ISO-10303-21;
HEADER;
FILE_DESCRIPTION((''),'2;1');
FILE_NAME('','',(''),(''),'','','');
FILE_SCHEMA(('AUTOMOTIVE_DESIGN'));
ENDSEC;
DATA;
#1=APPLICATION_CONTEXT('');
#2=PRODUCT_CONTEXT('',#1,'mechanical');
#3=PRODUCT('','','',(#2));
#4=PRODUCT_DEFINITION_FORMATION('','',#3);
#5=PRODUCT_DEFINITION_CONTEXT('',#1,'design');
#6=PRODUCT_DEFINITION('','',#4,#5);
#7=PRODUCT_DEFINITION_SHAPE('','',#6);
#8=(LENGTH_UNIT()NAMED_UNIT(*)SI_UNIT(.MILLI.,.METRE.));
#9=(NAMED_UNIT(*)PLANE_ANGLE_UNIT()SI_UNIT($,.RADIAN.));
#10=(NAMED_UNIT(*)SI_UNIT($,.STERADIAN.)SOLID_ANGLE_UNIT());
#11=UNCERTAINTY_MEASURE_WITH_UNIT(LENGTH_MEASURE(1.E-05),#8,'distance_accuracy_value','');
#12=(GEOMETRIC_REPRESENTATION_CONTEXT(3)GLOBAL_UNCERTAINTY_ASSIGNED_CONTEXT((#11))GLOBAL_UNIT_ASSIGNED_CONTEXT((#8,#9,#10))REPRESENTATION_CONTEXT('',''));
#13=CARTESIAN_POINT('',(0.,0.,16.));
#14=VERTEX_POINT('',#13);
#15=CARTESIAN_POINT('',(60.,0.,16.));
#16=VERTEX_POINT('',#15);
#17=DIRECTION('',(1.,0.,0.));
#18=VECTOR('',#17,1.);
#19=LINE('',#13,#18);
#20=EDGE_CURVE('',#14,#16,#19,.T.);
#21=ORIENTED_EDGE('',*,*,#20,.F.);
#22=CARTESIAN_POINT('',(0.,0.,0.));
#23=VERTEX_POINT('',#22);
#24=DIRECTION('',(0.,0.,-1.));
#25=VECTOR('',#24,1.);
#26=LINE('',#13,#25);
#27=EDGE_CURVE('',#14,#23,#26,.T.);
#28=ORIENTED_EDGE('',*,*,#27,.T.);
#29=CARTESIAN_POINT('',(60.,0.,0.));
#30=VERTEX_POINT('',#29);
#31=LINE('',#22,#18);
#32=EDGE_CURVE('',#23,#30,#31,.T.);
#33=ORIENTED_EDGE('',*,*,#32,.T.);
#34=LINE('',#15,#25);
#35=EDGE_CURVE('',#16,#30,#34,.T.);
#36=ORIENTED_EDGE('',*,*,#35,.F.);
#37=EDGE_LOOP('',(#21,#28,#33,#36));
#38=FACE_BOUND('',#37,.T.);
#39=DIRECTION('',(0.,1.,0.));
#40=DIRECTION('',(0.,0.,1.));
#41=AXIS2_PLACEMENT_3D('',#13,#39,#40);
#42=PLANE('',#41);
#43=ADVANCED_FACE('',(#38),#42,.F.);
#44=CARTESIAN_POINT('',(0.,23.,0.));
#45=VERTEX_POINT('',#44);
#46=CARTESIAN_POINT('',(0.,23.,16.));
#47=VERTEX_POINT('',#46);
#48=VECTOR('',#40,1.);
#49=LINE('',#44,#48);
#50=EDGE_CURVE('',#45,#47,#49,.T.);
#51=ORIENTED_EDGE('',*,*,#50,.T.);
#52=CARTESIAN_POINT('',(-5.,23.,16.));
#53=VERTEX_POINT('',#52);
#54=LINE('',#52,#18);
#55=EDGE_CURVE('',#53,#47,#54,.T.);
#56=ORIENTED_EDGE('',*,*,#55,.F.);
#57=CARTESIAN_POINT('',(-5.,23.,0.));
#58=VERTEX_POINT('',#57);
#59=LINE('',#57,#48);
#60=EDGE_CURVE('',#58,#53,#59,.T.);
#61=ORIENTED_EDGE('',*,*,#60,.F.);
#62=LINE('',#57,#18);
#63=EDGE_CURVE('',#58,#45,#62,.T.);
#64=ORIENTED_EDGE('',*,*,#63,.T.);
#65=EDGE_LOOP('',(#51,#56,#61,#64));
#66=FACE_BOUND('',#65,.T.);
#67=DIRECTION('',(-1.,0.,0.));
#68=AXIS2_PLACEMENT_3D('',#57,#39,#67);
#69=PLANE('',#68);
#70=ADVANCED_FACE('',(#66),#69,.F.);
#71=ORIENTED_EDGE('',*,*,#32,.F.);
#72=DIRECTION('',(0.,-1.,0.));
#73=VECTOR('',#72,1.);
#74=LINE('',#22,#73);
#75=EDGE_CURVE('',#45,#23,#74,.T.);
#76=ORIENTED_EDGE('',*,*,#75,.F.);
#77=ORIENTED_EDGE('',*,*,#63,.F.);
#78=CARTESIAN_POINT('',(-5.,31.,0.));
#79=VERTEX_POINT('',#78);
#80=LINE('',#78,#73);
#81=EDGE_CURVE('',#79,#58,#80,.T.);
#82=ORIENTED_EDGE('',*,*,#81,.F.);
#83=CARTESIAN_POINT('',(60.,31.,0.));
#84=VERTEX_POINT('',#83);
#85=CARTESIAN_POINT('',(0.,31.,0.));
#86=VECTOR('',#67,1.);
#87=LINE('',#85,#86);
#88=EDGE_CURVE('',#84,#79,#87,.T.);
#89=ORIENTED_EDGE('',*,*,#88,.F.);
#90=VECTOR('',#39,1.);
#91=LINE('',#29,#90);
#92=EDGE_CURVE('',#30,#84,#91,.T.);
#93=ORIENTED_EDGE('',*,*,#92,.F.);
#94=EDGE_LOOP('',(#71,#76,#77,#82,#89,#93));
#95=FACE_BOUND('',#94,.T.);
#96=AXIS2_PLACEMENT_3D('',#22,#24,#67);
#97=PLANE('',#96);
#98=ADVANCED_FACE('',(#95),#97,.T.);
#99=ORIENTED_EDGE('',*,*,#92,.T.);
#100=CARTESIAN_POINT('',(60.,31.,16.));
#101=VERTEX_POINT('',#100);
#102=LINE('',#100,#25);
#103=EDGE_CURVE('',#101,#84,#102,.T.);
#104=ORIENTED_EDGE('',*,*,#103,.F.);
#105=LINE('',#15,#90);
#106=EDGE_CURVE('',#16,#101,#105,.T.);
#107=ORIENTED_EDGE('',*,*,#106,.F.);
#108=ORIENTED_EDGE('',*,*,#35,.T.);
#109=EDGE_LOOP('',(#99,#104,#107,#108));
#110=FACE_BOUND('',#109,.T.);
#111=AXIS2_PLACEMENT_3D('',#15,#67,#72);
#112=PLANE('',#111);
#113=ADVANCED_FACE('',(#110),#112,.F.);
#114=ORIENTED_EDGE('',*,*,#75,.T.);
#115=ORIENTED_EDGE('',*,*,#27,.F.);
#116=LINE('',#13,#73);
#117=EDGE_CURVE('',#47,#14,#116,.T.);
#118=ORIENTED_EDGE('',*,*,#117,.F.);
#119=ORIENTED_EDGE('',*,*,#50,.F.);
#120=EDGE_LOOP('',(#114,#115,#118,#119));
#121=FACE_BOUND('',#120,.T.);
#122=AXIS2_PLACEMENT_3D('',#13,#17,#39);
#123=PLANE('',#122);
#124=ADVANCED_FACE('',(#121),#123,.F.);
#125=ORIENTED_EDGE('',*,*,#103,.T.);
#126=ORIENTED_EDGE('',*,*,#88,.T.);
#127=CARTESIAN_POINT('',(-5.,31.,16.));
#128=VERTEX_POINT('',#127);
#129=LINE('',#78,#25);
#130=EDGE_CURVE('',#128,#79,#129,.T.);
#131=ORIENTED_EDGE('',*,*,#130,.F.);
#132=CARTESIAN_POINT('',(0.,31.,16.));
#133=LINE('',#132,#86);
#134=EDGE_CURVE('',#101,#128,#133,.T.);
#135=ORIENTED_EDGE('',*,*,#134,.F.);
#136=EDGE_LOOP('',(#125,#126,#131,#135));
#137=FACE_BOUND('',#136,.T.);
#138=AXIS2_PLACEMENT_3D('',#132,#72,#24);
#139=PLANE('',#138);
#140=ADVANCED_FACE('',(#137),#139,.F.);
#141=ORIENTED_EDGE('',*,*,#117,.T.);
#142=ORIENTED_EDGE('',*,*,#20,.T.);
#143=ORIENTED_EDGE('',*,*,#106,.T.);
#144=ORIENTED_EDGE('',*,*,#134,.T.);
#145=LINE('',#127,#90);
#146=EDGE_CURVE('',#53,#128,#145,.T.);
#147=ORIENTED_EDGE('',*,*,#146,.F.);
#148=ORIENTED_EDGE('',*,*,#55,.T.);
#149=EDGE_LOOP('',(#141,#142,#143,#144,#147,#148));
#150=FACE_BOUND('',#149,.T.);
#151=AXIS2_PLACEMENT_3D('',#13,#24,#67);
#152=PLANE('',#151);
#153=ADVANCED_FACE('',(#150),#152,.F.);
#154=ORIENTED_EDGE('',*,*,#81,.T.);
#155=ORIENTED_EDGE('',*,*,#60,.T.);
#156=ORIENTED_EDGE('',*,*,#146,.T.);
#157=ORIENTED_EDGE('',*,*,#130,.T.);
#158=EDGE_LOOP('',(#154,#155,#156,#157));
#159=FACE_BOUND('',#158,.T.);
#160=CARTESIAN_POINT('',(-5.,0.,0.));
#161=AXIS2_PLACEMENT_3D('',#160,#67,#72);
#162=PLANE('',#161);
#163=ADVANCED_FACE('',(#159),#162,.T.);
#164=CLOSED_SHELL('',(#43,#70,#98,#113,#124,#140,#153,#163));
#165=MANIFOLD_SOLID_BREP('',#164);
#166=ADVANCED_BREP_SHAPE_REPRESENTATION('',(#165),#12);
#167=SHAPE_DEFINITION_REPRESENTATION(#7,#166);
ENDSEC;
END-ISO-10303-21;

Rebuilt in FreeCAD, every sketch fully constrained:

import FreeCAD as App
import Part
import Sketcher

V = App.Vector
Q = App.Units.Quantity

doc = App.newDocument("Part")
body = doc.addObject("PartDesign::Body", "Body")

# Sketch on XY plane
sketch1 = body.newObject("Sketcher::SketchObject", "Sketch")
sketch1.AttachmentSupport = (doc.getObject("XY_Plane"), [""])
sketch1.MapMode = "FlatFace"
sketch1.addGeometry(Part.LineSegment(V(0, 31, 0), V(0, 0, 0)), False)
sketch1.addGeometry(Part.LineSegment(V(0, 0, 0), V(60, 0, 0)), False)
sketch1.addGeometry(Part.LineSegment(V(60, 0, 0), V(60, 31, 0)), False)
sketch1.addGeometry(Part.LineSegment(V(60, 31, 0), V(0, 31, 0)), False)
sketch1.addConstraint(Sketcher.Constraint("Coincident", 0, 2, 1, 1))
sketch1.addConstraint(Sketcher.Constraint("Coincident", 1, 2, 2, 1))
sketch1.addConstraint(Sketcher.Constraint("Coincident", 2, 2, 3, 1))
sketch1.addConstraint(Sketcher.Constraint("Coincident", 3, 2, 0, 1))
sketch1.addConstraint(Sketcher.Constraint("Vertical", 0))
sketch1.addConstraint(Sketcher.Constraint("Horizontal", 1))
sketch1.addConstraint(Sketcher.Constraint("Vertical", 2))
sketch1.addConstraint(Sketcher.Constraint("Horizontal", 3))
sketch1.addConstraint(Sketcher.Constraint("Coincident", 0, 2, -1, 1))
sketch1.addConstraint(Sketcher.Constraint("DistanceX", 1, 1, 1, 2, Q("60 mm")))
sketch1.addConstraint(Sketcher.Constraint("DistanceY", 0, 2, 0, 1, Q("31 mm")))
pad1 = body.newObject("PartDesign::Pad", "Pad")
pad1.Profile = sketch1
pad1.Length = 16

# Sketch on YZ plane
sketch2 = body.newObject("Sketcher::SketchObject", "Sketch001")
sketch2.AttachmentSupport = (doc.getObject("YZ_Plane"), [""])
sketch2.MapMode = "FlatFace"
sketch2.addGeometry(Part.LineSegment(V(31, 0, 0), V(23, 0, 0)), False)
sketch2.addGeometry(Part.LineSegment(V(23, 0, 0), V(23, 16, 0)), False)
sketch2.addGeometry(Part.LineSegment(V(23, 16, 0), V(31, 16, 0)), False)
sketch2.addGeometry(Part.LineSegment(V(31, 16, 0), V(31, 0, 0)), False)
sketch2.addConstraint(Sketcher.Constraint("Coincident", 0, 2, 1, 1))
sketch2.addConstraint(Sketcher.Constraint("Coincident", 1, 2, 2, 1))
sketch2.addConstraint(Sketcher.Constraint("Coincident", 2, 2, 3, 1))
sketch2.addConstraint(Sketcher.Constraint("Coincident", 3, 2, 0, 1))
sketch2.addConstraint(Sketcher.Constraint("Horizontal", 0))
sketch2.addConstraint(Sketcher.Constraint("Vertical", 1))
sketch2.addConstraint(Sketcher.Constraint("Horizontal", 2))
sketch2.addConstraint(Sketcher.Constraint("Vertical", 3))
sketch2.addConstraint(Sketcher.Constraint("PointOnObject", 0, 2, -1))
sketch2.addConstraint(Sketcher.Constraint("DistanceX", 0, 2, 0, 1, Q("8 mm")))
sketch2.addConstraint(Sketcher.Constraint("DistanceY", 1, 1, 1, 2, Q("16 mm")))
sketch2.addConstraint(Sketcher.Constraint("DistanceX", -1, 1, 0, 2, Q("23 mm")))
pad2 = body.newObject("PartDesign::Pad", "Pad001")
pad2.Profile = sketch2
pad2.Length = 5
pad2.Reversed = True

doc.recompute()
